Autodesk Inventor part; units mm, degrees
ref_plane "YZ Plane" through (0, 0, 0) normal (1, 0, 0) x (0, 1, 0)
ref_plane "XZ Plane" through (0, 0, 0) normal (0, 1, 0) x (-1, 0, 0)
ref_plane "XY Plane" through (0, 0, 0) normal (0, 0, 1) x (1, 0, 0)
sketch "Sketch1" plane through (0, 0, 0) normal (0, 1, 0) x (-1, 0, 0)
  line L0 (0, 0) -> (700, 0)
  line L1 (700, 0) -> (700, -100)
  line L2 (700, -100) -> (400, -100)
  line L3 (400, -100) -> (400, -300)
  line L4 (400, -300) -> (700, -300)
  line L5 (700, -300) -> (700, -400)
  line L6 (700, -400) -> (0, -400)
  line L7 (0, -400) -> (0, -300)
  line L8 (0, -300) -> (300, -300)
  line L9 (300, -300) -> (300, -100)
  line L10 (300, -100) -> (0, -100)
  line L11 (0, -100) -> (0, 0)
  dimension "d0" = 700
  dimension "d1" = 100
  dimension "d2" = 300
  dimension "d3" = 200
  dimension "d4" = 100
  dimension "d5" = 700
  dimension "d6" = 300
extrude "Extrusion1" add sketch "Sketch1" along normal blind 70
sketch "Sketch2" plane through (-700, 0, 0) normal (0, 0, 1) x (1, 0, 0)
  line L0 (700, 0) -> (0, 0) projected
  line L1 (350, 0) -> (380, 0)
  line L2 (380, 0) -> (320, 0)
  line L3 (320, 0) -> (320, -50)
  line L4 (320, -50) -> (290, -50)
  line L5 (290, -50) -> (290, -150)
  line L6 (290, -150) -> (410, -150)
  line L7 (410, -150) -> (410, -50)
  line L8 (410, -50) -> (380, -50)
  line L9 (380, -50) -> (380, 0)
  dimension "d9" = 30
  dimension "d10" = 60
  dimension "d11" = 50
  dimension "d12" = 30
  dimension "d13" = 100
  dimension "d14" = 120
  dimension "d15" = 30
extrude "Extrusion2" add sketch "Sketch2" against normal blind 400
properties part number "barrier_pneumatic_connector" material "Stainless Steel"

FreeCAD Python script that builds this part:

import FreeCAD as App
import Part
import Sketcher


def add_polygon(sketch, points):
    """Adds a closed chain of lines whose ends are joined by coincident constraints."""
    first, n = sketch.GeometryCount, len(points)
    for a, b in zip(points, points[1:] + points[:1]):
        sketch.addGeometry(Part.LineSegment(App.Vector(*a, 0), App.Vector(*b, 0)), False)
    for i in range(n):
        sketch.addConstraint(Sketcher.Constraint("Coincident", first + i, 2, first + (i + 1) % n, 1))

doc = App.newDocument("Part")
body = doc.addObject("PartDesign::Body", "Body")

sketch1 = doc.addObject("Sketcher::SketchObject", "Sketch")
body.addObject(sketch1)
sketch1.AttachmentSupport = (doc.XZ_Plane, [""])
sketch1.MapMode = "FlatFace"
add_polygon(sketch1, [(-700, 0), (0, 0), (0, -100), (-300, -100), (-300, -300), (0, -300), (0, -400), (-700, -400), (-700, -300), (-400, -300), (-400, -100), (-700, -100)])
sketch1.addConstraint(Sketcher.Constraint("Horizontal", 0))
sketch1.addConstraint(Sketcher.Constraint("Vertical", 1))
sketch1.addConstraint(Sketcher.Constraint("Horizontal", 2))
sketch1.addConstraint(Sketcher.Constraint("Vertical", 3))
sketch1.addConstraint(Sketcher.Constraint("Horizontal", 4))
sketch1.addConstraint(Sketcher.Constraint("Vertical", 5))
sketch1.addConstraint(Sketcher.Constraint("Horizontal", 6))
sketch1.addConstraint(Sketcher.Constraint("Vertical", 7))
sketch1.addConstraint(Sketcher.Constraint("Horizontal", 8))
sketch1.addConstraint(Sketcher.Constraint("Vertical", 9))
sketch1.addConstraint(Sketcher.Constraint("Horizontal", 10))
sketch1.addConstraint(Sketcher.Constraint("Vertical", 11))
sketch1.addConstraint(Sketcher.Constraint("Coincident", 0, 2, -1, 1))
sketch1.addConstraint(Sketcher.Constraint("PointOnObject", 4, 2, -2))
sketch1.addConstraint(Sketcher.Constraint("Horizontal", 4, 2, 7, 2))
sketch1.addConstraint(Sketcher.Constraint("Horizontal", 2, 2, 9, 2))
sketch1.addConstraint(Sketcher.Constraint("Vertical", 7, 2, 10, 2))
sketch1.addConstraint(Sketcher.Constraint("Equal", 4, 8))
sketch1.addConstraint(Sketcher.Constraint("Equal", 1, 5))
sketch1.addConstraint(Sketcher.Constraint("DistanceX", 0, 1, 0, 2, 700.0))
sketch1.addConstraint(Sketcher.Constraint("DistanceX", 2, 2, 2, 1, 300.0))
sketch1.addConstraint(Sketcher.Constraint("DistanceY", 1, 2, 1, 1, 100.0))
sketch1.addConstraint(Sketcher.Constraint("DistanceY", 3, 2, 3, 1, 200.0))
pad1 = doc.addObject("PartDesign::Pad", "Pad")
body.addObject(pad1)
pad1.Profile = sketch1
pad1.Length = 70
pad1.Reversed = True

sketch2 = doc.addObject("Sketcher::SketchObject", "Sketch001")
body.addObject(sketch2)
sketch2.AttachmentSupport = (doc.XY_Plane, [""])
sketch2.MapMode = "FlatFace"
add_polygon(sketch2, [(-320, -50), (-320, 0), (-380, 0), (-380, -50), (-410, -50), (-410, -150), (-290, -150), (-290, -50)])
sketch2.addConstraint(Sketcher.Constraint("Vertical", 0))
sketch2.addConstraint(Sketcher.Constraint("Horizontal", 1))
sketch2.addConstraint(Sketcher.Constraint("Vertical", 2))
sketch2.addConstraint(Sketcher.Constraint("Horizontal", 3))
sketch2.addConstraint(Sketcher.Constraint("Vertical", 4))
sketch2.addConstraint(Sketcher.Constraint("Horizontal", 5))
sketch2.addConstraint(Sketcher.Constraint("Vertical", 6))
sketch2.addConstraint(Sketcher.Constraint("Horizontal", 7))
sketch2.addConstraint(Sketcher.Constraint("PointOnObject", 0, 2, -1))
sketch2.addConstraint(Sketcher.Constraint("Horizontal", 3, 2, 6, 2))
sketch2.addConstraint(Sketcher.Constraint("Equal", 3, 7))
sketch2.addConstraint(Sketcher.Constraint("DistanceX", 1, 2, 1, 1, 60.0))
sketch2.addConstraint(Sketcher.Constraint("DistanceX", 3, 2, 3, 1, 30.0))
sketch2.addConstraint(Sketcher.Constraint("DistanceY", 0, 1, 0, 2, 50.0))
sketch2.addConstraint(Sketcher.Constraint("DistanceY", 4, 2, 4, 1, 100.0))
sketch2.addConstraint(Sketcher.Constraint("DistanceX", 0, 2, -1, 1, 320.0))
pad2 = doc.addObject("PartDesign::Pad", "Pad001")
body.addObject(pad2)
pad2.Profile = sketch2
pad2.Length = 400
pad2.Reversed = True

doc.recompute()
